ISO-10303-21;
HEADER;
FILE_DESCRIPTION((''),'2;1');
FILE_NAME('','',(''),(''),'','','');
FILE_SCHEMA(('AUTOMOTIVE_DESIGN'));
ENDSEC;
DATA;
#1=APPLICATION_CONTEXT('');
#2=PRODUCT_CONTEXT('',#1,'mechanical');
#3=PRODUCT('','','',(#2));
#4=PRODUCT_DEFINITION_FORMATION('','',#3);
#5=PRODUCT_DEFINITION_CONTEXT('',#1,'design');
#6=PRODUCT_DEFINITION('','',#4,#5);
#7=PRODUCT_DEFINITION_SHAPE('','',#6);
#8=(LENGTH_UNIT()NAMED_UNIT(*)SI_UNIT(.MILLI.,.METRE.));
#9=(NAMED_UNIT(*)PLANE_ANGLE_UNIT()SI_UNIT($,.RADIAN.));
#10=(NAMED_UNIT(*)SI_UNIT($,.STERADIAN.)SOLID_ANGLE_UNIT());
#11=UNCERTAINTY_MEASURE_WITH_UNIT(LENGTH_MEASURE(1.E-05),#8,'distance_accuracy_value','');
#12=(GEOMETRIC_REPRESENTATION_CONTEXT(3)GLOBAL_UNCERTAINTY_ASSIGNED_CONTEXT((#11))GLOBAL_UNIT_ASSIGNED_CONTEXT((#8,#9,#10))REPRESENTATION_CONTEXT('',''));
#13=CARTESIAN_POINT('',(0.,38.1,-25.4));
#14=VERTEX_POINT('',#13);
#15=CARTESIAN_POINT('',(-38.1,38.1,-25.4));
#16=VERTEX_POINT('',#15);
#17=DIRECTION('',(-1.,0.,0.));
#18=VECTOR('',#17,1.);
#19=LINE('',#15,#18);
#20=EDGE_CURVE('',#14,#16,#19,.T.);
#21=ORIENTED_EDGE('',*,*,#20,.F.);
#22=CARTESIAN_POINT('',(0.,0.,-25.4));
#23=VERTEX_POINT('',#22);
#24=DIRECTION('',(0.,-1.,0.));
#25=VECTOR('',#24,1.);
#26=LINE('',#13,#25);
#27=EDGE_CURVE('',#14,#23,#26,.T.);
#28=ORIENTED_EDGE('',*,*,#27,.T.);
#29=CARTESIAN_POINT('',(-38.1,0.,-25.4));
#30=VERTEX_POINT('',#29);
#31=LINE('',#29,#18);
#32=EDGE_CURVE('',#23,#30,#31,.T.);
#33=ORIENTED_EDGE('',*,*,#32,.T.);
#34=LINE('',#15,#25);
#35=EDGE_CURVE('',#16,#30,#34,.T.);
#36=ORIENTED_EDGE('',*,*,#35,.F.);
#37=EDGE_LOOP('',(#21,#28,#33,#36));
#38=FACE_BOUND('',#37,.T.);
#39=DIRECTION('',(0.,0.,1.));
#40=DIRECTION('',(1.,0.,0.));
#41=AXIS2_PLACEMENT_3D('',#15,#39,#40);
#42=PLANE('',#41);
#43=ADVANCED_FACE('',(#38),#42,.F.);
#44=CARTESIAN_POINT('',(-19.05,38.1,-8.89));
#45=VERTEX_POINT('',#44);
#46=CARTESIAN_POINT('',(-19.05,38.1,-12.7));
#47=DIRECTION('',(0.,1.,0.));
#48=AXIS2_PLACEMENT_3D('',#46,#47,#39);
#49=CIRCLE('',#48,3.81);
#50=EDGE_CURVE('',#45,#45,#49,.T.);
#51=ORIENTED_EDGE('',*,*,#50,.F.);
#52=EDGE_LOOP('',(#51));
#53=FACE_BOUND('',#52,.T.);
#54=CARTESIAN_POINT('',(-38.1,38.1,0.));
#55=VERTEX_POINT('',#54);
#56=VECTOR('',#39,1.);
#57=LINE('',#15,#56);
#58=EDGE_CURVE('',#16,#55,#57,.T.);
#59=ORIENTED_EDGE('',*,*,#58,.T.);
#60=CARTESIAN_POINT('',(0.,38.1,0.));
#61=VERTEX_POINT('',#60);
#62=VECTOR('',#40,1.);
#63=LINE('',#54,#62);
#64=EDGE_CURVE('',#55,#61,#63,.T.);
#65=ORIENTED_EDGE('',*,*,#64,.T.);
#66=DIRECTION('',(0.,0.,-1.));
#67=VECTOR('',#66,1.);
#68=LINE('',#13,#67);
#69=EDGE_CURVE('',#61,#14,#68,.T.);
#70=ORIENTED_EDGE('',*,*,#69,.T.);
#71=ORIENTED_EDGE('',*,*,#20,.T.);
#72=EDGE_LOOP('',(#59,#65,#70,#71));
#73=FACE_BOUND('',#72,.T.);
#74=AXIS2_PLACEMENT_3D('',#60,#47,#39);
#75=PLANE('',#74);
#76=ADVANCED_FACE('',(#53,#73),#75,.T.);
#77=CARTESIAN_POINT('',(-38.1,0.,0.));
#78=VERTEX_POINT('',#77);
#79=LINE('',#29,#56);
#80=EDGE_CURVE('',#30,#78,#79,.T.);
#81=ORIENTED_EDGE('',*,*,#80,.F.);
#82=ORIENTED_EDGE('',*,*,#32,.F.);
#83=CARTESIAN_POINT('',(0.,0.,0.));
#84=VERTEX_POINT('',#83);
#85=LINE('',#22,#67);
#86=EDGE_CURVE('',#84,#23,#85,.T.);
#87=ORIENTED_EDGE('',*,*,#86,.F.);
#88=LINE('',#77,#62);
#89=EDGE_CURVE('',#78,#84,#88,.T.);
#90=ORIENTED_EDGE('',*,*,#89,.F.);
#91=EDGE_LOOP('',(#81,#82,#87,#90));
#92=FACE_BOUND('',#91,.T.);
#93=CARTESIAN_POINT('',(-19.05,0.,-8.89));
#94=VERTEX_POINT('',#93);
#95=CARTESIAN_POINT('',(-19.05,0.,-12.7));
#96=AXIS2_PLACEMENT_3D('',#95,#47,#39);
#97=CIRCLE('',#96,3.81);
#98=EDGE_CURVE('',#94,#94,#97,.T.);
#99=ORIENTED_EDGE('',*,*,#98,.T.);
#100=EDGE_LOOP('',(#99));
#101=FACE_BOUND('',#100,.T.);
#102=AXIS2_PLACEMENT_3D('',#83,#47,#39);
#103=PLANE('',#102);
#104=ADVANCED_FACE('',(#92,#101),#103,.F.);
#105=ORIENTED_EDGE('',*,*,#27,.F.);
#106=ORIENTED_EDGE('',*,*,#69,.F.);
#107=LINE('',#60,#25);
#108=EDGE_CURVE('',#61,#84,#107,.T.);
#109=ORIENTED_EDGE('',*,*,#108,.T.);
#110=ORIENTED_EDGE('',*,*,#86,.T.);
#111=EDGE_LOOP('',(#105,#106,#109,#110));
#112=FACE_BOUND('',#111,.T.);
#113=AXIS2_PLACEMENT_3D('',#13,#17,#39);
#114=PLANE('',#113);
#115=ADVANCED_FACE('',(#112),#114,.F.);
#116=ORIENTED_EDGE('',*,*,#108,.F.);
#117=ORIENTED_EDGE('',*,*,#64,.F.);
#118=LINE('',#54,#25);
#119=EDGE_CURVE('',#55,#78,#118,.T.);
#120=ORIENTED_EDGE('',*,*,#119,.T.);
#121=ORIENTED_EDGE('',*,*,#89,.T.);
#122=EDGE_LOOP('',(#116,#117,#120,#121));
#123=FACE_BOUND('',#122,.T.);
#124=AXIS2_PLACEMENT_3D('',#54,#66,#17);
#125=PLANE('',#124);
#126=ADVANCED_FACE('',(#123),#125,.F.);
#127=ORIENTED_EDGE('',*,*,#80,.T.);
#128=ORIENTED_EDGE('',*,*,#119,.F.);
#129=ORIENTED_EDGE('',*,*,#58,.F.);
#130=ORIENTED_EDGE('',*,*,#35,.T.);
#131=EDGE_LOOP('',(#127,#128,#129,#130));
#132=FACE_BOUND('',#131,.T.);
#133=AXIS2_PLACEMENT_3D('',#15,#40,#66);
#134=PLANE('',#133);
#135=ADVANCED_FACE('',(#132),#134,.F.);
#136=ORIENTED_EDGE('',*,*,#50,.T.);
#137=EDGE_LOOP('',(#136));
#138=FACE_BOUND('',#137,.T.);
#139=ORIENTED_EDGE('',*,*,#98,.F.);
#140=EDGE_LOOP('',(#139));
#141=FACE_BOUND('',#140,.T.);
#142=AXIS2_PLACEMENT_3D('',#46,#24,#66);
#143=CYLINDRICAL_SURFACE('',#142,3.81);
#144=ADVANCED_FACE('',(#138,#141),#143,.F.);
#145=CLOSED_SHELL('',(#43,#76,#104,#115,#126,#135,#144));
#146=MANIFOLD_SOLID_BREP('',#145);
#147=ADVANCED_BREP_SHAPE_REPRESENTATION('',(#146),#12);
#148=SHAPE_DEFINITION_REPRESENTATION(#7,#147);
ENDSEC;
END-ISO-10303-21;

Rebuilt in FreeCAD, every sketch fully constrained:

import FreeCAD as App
import Part
import Sketcher

V = App.Vector
Q = App.Units.Quantity

doc = App.newDocument("Part")
body = doc.addObject("PartDesign::Body", "Body")

# Sketch on XZ plane
sketch1 = body.newObject("Sketcher::SketchObject", "Sketch")
sketch1.AttachmentSupport = (doc.getObject("XZ_Plane"), [""])
sketch1.MapMode = "FlatFace"
sketch1.addGeometry([
    Part.LineSegment(V(-38.1, -25.4, 0), V(-38.1, 0, 0)),  # 0
    Part.LineSegment(V(-38.1, 0, 0), V(0, 0, 0)),  # 1
    Part.LineSegment(V(0, 0, 0), V(0, -25.4, 0)),  # 2
    Part.LineSegment(V(0, -25.4, 0), V(-38.1, -25.4, 0)),  # 3
    Part.Circle(V(-19.1, -12.7, 0), V(0, 0, 1), 3.8),  # 4
], False)
sketch1.addConstraint([
    Sketcher.Constraint("Coincident", 0, 2, 1, 1),
    Sketcher.Constraint("Coincident", 1, 2, 2, 1),
    Sketcher.Constraint("Coincident", 2, 2, 3, 1),
    Sketcher.Constraint("Coincident", 3, 2, 0, 1),
    Sketcher.Constraint("Vertical", 0),
    Sketcher.Constraint("Horizontal", 1),
    Sketcher.Constraint("Vertical", 2),
    Sketcher.Constraint("Horizontal", 3),
    Sketcher.Constraint("Coincident", 1, 2, -1, 1),
    Sketcher.Constraint("Diameter", 4, Q("0.3 in")),
    Sketcher.Constraint("DistanceY", 0, 1, 0, 2, Q("1 in")),
    Sketcher.Constraint("DistanceX", 1, 1, 1, 2, Q("1.5 in")),
    Sketcher.Constraint("DistanceY", 4, 3, -1, 1, Q("0.5 in")),
    Sketcher.Constraint("DistanceX", 4, 3, -1, 1, Q("0.75 in")),
])
pad1 = body.newObject("PartDesign::Pad", "Pad")
pad1.Profile = sketch1
pad1.Length = Q("1.5 in")
pad1.Reversed = True

doc.recompute()
